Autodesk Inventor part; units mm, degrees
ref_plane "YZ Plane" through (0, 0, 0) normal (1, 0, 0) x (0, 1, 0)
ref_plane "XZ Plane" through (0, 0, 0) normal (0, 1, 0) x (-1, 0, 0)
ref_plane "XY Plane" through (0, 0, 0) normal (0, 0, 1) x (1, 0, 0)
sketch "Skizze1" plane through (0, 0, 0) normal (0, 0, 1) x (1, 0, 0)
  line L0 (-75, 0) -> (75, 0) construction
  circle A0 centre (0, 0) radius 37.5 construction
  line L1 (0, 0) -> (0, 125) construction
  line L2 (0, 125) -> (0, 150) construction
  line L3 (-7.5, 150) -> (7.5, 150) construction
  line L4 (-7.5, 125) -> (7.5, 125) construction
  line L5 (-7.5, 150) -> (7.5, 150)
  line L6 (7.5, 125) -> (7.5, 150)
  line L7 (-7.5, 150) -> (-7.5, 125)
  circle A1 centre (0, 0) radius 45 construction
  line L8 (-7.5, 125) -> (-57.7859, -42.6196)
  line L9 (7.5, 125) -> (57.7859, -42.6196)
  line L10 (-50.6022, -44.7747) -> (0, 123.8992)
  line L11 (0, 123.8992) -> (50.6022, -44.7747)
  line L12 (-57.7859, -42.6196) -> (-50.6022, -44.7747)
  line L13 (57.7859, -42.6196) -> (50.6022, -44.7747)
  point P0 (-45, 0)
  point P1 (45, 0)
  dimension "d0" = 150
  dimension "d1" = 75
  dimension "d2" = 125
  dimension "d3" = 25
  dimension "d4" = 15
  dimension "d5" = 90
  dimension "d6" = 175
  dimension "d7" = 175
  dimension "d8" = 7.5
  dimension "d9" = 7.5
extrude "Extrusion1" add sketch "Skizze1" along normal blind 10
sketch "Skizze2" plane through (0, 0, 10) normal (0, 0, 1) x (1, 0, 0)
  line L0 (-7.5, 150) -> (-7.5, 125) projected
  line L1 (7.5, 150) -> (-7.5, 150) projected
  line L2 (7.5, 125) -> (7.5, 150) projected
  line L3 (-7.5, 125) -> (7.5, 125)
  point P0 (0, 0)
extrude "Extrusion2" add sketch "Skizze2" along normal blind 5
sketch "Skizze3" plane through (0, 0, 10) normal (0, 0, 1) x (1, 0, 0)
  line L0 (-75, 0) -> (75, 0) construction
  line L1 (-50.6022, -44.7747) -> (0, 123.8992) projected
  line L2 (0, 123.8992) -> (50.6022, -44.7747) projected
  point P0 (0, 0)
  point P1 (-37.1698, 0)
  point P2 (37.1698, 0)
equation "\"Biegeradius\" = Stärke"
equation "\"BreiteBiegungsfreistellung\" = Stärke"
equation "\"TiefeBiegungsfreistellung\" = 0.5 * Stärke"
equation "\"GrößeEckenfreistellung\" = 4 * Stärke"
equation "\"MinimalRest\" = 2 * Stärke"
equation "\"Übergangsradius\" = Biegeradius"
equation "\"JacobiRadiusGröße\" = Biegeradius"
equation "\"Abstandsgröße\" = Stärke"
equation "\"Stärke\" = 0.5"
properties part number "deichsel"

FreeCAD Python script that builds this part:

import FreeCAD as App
import Part
import Sketcher
from FreeCAD import Vector
Q = App.Units.Quantity

doc = App.newDocument("Part")
params = doc.addObject("Spreadsheet::Sheet", "Params")
for row, (alias, value) in enumerate([
    ("sketch1_width", "15 mm"),
    ("sketch1_height", "25 mm"),
    ("sketch1_length", "175 mm"),
    ("sketch1_length2", "7.5 mm"),
    ("pad1_length", "10 mm"),
    ("sketch2_width", "15 mm"),
    ("sketch2_height", "25 mm"),
    ("pad2_length", "5 mm"),
], start=1):
    params.set(f"A{row}", alias)
    params.set(f"B{row}", "=" + value)
    params.setAlias(f"B{row}", alias)

body = doc.addObject("PartDesign::Body", "Body")

# Sketch on XY plane
sketch1 = doc.addObject("Sketcher::SketchObject", "Sketch")
body.addObject(sketch1)
sketch1.AttachmentSupport = (doc.XY_Plane, [""])
sketch1.MapMode = "FlatFace"
sketch1.addGeometry([
    Part.LineSegment(Vector(8, 150, 0), Vector(-8, 150, 0)),  # 0
    Part.LineSegment(Vector(-8, 150, 0), Vector(-8, 125, 0)),  # 1
    Part.LineSegment(Vector(-8, 125, 0), Vector(-58, -43, 0)),  # 2
    Part.LineSegment(Vector(-58, -43, 0), Vector(-51, -45, 0)),  # 3
    Part.LineSegment(Vector(-51, -45, 0), Vector(0, 124, 0)),  # 4
    Part.LineSegment(Vector(0, 124, 0), Vector(51, -45, 0)),  # 5
    Part.LineSegment(Vector(51, -45, 0), Vector(58, -43, 0)),  # 6
    Part.LineSegment(Vector(58, -43, 0), Vector(8, 125, 0)),  # 7
    Part.LineSegment(Vector(8, 125, 0), Vector(8, 150, 0)),  # 8
], False)
sketch1.addConstraint([
    Sketcher.Constraint("Coincident", 0, 2, 1, 1),
    Sketcher.Constraint("Coincident", 1, 2, 2, 1),
    Sketcher.Constraint("Coincident", 2, 2, 3, 1),
    Sketcher.Constraint("Coincident", 3, 2, 4, 1),
    Sketcher.Constraint("Coincident", 4, 2, 5, 1),
    Sketcher.Constraint("Coincident", 5, 2, 6, 1),
    Sketcher.Constraint("Coincident", 6, 2, 7, 1),
    Sketcher.Constraint("Coincident", 7, 2, 8, 1),
    Sketcher.Constraint("Coincident", 8, 2, 0, 1),
    Sketcher.Constraint("Horizontal", 0),
    Sketcher.Constraint("Vertical", 1),
    Sketcher.Constraint("Vertical", 8),
    Sketcher.Constraint("Symmetric", 3, 2, 5, 2, -2),
    Sketcher.Constraint("Symmetric", 2, 2, 6, 2, -2),
    Sketcher.Constraint("Symmetric", 1, 2, 7, 2, -2),
    Sketcher.Constraint("PointOnObject", 4, 2, -2),
    Sketcher.Constraint("Perpendicular", 2, 3),
    Sketcher.Constraint("Perpendicular", 3, 4),
    Sketcher.Constraint("DistanceX", 0, 2, 0, 1, Q("15 mm")),
    Sketcher.Constraint("DistanceY", 1, 2, 1, 1, Q("25 mm")),
    Sketcher.Constraint("Distance", 2, Q("175 mm")),
    Sketcher.Constraint("DistanceY", -1, 1, 0, 2, Q("150 mm")),
    Sketcher.Constraint("Distance", 3, Q("7.5 mm")),
    Sketcher.Constraint("Angle", 2, Q("-106.6993 deg")),
])
sketch1.setExpression("Constraints[18]", "Params.sketch1_width")
sketch1.setExpression("Constraints[19]", "Params.sketch1_height")
sketch1.setExpression("Constraints[20]", "Params.sketch1_length")
sketch1.setExpression("Constraints[22]", "Params.sketch1_length2")
pad1 = doc.addObject("PartDesign::Pad", "Pad")
body.addObject(pad1)
pad1.Profile = sketch1
pad1.setExpression("Length", "Params.pad1_length")

# Sketch on XY plane
sketch2 = doc.addObject("Sketcher::SketchObject", "Sketch001")
body.addObject(sketch2)
sketch2.AttachmentSupport = (doc.XY_Plane, [""])
sketch2.MapMode = "FlatFace"
sketch2.AttachmentOffset = App.Placement(Vector(0, 0, 10), App.Rotation())
sketch2.addGeometry([
    Part.LineSegment(Vector(8, 150, 0), Vector(-8, 150, 0)),
    Part.LineSegment(Vector(-8, 150, 0), Vector(-8, 125, 0)),
    Part.LineSegment(Vector(-8, 125, 0), Vector(8, 125, 0)),
    Part.LineSegment(Vector(8, 125, 0), Vector(8, 150, 0)),
], False)
sketch2.addConstraint([
    Sketcher.Constraint("Coincident", 0, 2, 1, 1),
    Sketcher.Constraint("Coincident", 1, 2, 2, 1),
    Sketcher.Constraint("Coincident", 2, 2, 3, 1),
    Sketcher.Constraint("Coincident", 3, 2, 0, 1),
    Sketcher.Constraint("Horizontal", 0),
    Sketcher.Constraint("Vertical", 1),
    Sketcher.Constraint("Horizontal", 2),
    Sketcher.Constraint("Vertical", 3),
    Sketcher.Constraint("DistanceX", 0, 2, 0, 1, Q("15 mm")),
    Sketcher.Constraint("DistanceY", 1, 2, 1, 1, Q("25 mm")),
    Sketcher.Constraint("DistanceY", -1, 1, 0, 2, Q("150 mm")),
    Sketcher.Constraint("DistanceX", 0, 2, -1, 1, Q("7.5 mm")),
])
sketch2.setExpression("Constraints[8]", "Params.sketch2_width")
sketch2.setExpression("Constraints[9]", "Params.sketch2_height")
pad2 = doc.addObject("PartDesign::Pad", "Pad001")
body.addObject(pad2)
pad2.Profile = sketch2
pad2.setExpression("Length", "Params.pad2_length")

doc.recompute()
